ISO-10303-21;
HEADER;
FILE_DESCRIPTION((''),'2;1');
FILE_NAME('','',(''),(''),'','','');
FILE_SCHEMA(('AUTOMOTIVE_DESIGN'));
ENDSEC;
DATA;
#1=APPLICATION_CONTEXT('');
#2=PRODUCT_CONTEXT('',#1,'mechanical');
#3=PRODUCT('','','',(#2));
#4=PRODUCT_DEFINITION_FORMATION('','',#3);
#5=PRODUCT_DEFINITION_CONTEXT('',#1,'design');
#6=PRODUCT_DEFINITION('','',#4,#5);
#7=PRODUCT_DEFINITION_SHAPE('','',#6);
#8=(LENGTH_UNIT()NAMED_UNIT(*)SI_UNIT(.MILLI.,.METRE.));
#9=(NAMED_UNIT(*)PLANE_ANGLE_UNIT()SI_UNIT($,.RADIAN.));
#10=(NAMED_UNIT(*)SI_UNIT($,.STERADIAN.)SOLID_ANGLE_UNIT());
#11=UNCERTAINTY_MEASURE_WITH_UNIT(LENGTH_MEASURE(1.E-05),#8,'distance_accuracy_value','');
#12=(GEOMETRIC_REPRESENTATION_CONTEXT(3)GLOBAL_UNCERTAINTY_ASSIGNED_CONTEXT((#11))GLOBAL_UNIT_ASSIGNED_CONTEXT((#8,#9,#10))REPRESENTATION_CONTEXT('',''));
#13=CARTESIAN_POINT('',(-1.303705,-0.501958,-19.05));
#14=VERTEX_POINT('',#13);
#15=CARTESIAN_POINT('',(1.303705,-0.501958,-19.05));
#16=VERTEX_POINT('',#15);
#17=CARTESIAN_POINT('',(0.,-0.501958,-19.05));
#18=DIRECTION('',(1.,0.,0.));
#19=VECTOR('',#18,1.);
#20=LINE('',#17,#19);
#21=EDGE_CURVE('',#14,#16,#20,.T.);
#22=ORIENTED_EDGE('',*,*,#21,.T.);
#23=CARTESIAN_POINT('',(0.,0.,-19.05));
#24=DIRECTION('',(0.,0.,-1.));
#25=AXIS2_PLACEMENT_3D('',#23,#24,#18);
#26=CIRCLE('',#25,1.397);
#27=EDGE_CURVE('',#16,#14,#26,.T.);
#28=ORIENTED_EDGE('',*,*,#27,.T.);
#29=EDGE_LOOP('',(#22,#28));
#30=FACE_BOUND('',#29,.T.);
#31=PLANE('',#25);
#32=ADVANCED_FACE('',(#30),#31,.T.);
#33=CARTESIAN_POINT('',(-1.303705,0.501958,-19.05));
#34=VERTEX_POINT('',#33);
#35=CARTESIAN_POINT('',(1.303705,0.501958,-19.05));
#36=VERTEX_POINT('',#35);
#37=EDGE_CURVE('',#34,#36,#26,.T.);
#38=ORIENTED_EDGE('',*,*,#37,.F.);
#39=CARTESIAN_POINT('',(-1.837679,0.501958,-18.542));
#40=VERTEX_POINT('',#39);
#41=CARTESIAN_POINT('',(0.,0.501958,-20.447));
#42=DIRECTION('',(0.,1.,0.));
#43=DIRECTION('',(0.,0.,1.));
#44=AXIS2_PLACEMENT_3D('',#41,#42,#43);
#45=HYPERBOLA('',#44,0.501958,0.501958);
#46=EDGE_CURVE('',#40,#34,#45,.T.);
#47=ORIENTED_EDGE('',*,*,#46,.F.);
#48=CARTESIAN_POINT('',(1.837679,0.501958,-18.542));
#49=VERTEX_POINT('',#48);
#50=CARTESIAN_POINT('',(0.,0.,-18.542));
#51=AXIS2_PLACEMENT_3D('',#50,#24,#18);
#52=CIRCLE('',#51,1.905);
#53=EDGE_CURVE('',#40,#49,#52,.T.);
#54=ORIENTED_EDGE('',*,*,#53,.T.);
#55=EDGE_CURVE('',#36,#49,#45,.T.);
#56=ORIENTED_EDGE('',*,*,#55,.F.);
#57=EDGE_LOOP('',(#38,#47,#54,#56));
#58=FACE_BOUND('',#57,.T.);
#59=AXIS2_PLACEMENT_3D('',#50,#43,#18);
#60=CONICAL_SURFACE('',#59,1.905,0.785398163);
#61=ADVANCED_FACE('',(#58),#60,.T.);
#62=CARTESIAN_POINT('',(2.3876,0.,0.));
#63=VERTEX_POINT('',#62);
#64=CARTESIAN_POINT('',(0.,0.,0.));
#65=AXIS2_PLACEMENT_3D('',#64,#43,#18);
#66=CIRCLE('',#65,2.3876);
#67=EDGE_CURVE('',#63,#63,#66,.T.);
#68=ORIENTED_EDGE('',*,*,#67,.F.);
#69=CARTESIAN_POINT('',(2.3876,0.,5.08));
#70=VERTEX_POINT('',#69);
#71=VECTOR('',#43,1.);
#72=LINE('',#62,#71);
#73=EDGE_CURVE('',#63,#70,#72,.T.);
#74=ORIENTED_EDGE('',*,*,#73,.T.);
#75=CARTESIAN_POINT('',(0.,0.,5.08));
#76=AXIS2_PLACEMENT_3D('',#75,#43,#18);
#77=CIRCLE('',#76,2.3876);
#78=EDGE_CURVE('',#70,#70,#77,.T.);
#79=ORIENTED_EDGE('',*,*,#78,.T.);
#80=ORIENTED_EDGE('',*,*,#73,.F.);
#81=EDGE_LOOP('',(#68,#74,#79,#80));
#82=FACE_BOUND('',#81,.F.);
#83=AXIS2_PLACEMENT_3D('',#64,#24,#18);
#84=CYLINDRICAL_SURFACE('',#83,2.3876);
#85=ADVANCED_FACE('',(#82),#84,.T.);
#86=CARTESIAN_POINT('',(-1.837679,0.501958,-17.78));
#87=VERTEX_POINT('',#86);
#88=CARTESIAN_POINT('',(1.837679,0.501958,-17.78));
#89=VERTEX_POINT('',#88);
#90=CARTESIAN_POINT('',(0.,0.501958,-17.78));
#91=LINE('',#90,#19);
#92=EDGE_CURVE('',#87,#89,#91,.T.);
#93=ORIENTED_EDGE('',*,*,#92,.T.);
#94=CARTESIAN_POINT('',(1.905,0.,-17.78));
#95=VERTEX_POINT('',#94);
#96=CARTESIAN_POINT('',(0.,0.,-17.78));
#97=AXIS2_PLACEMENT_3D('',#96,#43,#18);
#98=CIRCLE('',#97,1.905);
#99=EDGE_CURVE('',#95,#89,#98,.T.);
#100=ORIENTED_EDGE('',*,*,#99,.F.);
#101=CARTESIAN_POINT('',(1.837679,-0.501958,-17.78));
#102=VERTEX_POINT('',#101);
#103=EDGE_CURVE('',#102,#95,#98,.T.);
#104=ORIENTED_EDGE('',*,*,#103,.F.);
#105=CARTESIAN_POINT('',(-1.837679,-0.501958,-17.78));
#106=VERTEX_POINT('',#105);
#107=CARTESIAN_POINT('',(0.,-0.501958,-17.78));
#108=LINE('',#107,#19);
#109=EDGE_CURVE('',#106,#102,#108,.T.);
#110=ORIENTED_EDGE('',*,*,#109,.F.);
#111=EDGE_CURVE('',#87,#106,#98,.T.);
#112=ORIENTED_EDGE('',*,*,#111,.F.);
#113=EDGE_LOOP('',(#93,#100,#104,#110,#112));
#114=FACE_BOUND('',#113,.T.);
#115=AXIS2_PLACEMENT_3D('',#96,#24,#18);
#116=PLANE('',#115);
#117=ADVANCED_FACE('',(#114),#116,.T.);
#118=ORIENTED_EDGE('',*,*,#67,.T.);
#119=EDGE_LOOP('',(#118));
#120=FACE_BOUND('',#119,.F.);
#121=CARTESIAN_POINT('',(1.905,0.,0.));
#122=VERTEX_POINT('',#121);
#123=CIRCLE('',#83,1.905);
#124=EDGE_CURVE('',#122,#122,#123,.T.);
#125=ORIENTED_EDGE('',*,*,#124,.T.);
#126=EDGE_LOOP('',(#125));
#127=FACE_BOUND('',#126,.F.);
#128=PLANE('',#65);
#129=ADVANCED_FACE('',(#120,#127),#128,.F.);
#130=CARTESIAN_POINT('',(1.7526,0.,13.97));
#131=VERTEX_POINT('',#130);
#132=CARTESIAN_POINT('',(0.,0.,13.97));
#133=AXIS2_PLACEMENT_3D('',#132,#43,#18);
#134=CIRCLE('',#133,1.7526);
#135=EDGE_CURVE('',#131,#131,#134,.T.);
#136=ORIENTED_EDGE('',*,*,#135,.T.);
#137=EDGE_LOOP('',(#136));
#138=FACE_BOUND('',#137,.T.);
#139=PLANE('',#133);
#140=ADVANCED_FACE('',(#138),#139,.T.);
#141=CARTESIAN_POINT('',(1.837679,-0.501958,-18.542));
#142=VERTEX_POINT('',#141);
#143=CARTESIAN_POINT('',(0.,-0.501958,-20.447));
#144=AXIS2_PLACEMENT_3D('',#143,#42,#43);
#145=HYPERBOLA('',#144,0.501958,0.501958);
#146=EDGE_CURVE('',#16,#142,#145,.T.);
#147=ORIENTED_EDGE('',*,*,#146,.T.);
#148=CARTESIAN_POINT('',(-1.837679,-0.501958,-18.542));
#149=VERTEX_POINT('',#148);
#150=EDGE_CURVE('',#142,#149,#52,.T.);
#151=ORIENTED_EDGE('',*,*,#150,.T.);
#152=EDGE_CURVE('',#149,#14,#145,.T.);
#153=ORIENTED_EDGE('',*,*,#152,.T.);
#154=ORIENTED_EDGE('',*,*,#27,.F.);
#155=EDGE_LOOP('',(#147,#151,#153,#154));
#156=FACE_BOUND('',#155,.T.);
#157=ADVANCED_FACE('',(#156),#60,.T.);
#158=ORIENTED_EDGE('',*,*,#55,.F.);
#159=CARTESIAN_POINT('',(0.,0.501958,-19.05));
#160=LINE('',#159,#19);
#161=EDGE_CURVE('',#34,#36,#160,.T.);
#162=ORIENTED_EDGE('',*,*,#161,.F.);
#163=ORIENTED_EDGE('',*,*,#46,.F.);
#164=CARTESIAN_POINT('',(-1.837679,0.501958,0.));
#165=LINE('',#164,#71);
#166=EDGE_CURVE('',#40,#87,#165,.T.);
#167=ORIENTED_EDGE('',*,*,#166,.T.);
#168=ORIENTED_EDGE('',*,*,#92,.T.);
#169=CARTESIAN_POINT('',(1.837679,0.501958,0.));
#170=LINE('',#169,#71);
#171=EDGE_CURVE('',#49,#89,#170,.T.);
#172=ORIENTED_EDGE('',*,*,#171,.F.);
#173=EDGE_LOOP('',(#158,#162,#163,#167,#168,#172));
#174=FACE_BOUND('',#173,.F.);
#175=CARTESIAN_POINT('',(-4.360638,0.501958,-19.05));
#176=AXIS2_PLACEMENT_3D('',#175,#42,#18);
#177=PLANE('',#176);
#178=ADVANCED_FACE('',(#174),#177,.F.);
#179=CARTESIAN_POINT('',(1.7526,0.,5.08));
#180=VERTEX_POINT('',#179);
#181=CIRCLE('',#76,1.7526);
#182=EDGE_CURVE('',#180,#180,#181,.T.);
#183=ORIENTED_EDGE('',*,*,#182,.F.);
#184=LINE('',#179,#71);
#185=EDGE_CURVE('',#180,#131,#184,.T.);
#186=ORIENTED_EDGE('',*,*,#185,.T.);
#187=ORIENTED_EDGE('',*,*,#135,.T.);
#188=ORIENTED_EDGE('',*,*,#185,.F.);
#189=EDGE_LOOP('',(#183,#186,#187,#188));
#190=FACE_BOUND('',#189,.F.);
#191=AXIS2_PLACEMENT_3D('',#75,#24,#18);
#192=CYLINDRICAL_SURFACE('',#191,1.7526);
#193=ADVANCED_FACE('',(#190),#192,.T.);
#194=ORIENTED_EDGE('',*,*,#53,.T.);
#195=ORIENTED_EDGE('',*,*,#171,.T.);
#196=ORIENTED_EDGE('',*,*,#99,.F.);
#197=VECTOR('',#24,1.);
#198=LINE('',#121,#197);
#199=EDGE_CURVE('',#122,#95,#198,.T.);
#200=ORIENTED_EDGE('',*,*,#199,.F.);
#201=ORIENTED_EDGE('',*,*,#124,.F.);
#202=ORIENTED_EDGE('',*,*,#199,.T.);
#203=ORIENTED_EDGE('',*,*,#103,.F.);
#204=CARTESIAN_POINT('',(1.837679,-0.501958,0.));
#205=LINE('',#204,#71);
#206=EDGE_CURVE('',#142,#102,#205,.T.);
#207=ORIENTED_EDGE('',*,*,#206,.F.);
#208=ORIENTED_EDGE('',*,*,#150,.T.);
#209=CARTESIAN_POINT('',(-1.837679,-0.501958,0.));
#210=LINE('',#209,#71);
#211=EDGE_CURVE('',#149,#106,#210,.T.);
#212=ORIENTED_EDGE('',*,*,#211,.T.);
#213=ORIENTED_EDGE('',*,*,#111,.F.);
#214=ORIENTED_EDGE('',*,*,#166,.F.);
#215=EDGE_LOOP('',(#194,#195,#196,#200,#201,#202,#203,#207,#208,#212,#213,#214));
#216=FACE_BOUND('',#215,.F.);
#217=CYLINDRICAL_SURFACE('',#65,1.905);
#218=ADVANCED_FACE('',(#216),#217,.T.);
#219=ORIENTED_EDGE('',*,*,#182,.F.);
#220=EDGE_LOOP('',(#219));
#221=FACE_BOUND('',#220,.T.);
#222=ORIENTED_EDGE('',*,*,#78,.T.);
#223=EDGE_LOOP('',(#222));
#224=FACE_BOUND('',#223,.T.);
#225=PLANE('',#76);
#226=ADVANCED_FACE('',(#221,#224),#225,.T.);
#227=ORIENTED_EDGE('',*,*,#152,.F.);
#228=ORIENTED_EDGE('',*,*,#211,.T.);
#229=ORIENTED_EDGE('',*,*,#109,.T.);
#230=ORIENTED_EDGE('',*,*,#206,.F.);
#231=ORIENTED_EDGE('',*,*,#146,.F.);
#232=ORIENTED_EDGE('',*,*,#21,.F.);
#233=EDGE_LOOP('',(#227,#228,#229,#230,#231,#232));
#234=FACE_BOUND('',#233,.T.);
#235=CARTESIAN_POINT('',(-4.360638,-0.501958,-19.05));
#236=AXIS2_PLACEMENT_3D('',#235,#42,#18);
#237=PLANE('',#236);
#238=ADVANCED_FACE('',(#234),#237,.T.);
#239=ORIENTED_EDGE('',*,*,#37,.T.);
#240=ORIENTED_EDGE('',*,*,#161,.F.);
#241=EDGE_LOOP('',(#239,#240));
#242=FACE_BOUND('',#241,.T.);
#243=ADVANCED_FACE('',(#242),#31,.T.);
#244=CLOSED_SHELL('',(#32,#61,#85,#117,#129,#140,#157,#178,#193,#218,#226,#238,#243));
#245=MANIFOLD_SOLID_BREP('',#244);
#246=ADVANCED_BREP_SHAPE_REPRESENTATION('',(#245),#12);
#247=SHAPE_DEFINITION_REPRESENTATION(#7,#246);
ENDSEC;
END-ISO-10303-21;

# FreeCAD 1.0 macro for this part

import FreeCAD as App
import Part
import Sketcher
Q = App.Units.Quantity


def edges_at(feature, points):
    """Names of the edges that pass closest to the given points."""
    edges = feature.Shape.Edges
    near = lambda p: min(range(len(edges)), key=lambda i: edges[i].distToShape(Part.Vertex(*p))[0])
    return sorted({f"Edge{near(p) + 1}" for p in points})


def add_polygon(sketch, points):
    """Adds a closed chain of lines whose ends are joined by coincident constraints."""
    first, n = sketch.GeometryCount, len(points)
    for a, b in zip(points, points[1:] + points[:1]):
        sketch.addGeometry(Part.LineSegment(App.Vector(*a, 0), App.Vector(*b, 0)), False)
    for i in range(n):
        sketch.addConstraint(Sketcher.Constraint("Coincident", first + i, 2, first + (i + 1) % n, 1))

doc = App.newDocument("Part")
body = doc.addObject("PartDesign::Body", "Body")

# Sketch on XY plane
sketch1 = body.newObject("Sketcher::SketchObject", "Sketch")
sketch1.AttachmentSupport = (doc.getObject("XY_Plane"), [""])
sketch1.MapMode = "FlatFace"
sketch1.addGeometry(Part.Circle(App.Vector(0, 0, 0), App.Vector(0, 0, 1), 2.3876), False)
sketch1.addConstraint([
    Sketcher.Constraint("Coincident", 0, 3, -1, 1),
    Sketcher.Constraint("Diameter", 0, Q("0.188 in")),
])
pad1 = body.newObject("PartDesign::Pad", "Pad")
pad1.Profile = sketch1
pad1.Length = Q("0.2 in")

# Sketch on XY plane
sketch2 = body.newObject("Sketcher::SketchObject", "Sketch001")
sketch2.AttachmentSupport = (doc.getObject("XY_Plane"), [""])
sketch2.MapMode = "FlatFace"
sketch2.AttachmentOffset = App.Placement(App.Vector(0, 0, 0.2 * 25.4), App.Rotation())
sketch2.addGeometry(Part.Circle(App.Vector(0, 0, 0), App.Vector(0, 0, 1), 1.7526), False)
sketch2.addConstraint([
    Sketcher.Constraint("Coincident", 0, 3, -1, 1),
    Sketcher.Constraint("Diameter", 0, Q("0.138 in")),
])
pad2 = body.newObject("PartDesign::Pad", "Pad001")
pad2.Profile = sketch2
pad2.Length = Q("0.35 in")

# Sketch on XY plane
sketch3 = body.newObject("Sketcher::SketchObject", "Sketch002")
sketch3.AttachmentSupport = (doc.getObject("XY_Plane"), [""])
sketch3.MapMode = "FlatFace"
sketch3.addGeometry(Part.Circle(App.Vector(0, 0, 0), App.Vector(0, 0, 1), 1.905), False)
sketch3.addConstraint([
    Sketcher.Constraint("Coincident", 0, 3, -1, 1),
    Sketcher.Constraint("Diameter", 0, Q("0.15 in")),
])
pad3 = body.newObject("PartDesign::Pad", "Pad002")
pad3.Profile = sketch3
pad3.Length = Q("0.75 in")
pad3.Reversed = True
doc.recompute()

chamfer = body.newObject("PartDesign::Chamfer", "Chamfer")
chamfer.Base = (pad3, edges_at(pad3, [(-1.905, 0, -19.05)]))
chamfer.Size = Q("0.02 in")

# Sketch on XY plane
sketch4 = body.newObject("Sketcher::SketchObject", "Sketch003")
sketch4.AttachmentSupport = (doc.getObject("XY_Plane"), [""])
sketch4.MapMode = "FlatFace"
sketch4.AttachmentOffset = App.Placement(App.Vector(0, 0, -0.75 * 25.4), App.Rotation())
add_polygon(sketch4, [(-4.360638, -0.501958), (-4.360638, 0.501958), (4.360638, 0.501958), (4.360638, -0.501958)])  # lines 0-3
sketch4.addConstraint([
    Sketcher.Constraint("Vertical", 0),
    Sketcher.Constraint("Horizontal", 1),
    Sketcher.Constraint("Vertical", 2),
    Sketcher.Constraint("Horizontal", 3),
    Sketcher.Constraint("Symmetric", 0, 2, 2, 2, -1, 1),
    Sketcher.Constraint("DistanceX", 1, 1, 1, 2, 8.721276),
    Sketcher.Constraint("DistanceY", 0, 1, 0, 2, 1.003916),
])
pocket1 = body.newObject("PartDesign::Pocket", "Pocket")
pocket1.Profile = sketch4
pocket1.Length = Q("0.05 in")
pocket1.Reversed = True

doc.recompute()
